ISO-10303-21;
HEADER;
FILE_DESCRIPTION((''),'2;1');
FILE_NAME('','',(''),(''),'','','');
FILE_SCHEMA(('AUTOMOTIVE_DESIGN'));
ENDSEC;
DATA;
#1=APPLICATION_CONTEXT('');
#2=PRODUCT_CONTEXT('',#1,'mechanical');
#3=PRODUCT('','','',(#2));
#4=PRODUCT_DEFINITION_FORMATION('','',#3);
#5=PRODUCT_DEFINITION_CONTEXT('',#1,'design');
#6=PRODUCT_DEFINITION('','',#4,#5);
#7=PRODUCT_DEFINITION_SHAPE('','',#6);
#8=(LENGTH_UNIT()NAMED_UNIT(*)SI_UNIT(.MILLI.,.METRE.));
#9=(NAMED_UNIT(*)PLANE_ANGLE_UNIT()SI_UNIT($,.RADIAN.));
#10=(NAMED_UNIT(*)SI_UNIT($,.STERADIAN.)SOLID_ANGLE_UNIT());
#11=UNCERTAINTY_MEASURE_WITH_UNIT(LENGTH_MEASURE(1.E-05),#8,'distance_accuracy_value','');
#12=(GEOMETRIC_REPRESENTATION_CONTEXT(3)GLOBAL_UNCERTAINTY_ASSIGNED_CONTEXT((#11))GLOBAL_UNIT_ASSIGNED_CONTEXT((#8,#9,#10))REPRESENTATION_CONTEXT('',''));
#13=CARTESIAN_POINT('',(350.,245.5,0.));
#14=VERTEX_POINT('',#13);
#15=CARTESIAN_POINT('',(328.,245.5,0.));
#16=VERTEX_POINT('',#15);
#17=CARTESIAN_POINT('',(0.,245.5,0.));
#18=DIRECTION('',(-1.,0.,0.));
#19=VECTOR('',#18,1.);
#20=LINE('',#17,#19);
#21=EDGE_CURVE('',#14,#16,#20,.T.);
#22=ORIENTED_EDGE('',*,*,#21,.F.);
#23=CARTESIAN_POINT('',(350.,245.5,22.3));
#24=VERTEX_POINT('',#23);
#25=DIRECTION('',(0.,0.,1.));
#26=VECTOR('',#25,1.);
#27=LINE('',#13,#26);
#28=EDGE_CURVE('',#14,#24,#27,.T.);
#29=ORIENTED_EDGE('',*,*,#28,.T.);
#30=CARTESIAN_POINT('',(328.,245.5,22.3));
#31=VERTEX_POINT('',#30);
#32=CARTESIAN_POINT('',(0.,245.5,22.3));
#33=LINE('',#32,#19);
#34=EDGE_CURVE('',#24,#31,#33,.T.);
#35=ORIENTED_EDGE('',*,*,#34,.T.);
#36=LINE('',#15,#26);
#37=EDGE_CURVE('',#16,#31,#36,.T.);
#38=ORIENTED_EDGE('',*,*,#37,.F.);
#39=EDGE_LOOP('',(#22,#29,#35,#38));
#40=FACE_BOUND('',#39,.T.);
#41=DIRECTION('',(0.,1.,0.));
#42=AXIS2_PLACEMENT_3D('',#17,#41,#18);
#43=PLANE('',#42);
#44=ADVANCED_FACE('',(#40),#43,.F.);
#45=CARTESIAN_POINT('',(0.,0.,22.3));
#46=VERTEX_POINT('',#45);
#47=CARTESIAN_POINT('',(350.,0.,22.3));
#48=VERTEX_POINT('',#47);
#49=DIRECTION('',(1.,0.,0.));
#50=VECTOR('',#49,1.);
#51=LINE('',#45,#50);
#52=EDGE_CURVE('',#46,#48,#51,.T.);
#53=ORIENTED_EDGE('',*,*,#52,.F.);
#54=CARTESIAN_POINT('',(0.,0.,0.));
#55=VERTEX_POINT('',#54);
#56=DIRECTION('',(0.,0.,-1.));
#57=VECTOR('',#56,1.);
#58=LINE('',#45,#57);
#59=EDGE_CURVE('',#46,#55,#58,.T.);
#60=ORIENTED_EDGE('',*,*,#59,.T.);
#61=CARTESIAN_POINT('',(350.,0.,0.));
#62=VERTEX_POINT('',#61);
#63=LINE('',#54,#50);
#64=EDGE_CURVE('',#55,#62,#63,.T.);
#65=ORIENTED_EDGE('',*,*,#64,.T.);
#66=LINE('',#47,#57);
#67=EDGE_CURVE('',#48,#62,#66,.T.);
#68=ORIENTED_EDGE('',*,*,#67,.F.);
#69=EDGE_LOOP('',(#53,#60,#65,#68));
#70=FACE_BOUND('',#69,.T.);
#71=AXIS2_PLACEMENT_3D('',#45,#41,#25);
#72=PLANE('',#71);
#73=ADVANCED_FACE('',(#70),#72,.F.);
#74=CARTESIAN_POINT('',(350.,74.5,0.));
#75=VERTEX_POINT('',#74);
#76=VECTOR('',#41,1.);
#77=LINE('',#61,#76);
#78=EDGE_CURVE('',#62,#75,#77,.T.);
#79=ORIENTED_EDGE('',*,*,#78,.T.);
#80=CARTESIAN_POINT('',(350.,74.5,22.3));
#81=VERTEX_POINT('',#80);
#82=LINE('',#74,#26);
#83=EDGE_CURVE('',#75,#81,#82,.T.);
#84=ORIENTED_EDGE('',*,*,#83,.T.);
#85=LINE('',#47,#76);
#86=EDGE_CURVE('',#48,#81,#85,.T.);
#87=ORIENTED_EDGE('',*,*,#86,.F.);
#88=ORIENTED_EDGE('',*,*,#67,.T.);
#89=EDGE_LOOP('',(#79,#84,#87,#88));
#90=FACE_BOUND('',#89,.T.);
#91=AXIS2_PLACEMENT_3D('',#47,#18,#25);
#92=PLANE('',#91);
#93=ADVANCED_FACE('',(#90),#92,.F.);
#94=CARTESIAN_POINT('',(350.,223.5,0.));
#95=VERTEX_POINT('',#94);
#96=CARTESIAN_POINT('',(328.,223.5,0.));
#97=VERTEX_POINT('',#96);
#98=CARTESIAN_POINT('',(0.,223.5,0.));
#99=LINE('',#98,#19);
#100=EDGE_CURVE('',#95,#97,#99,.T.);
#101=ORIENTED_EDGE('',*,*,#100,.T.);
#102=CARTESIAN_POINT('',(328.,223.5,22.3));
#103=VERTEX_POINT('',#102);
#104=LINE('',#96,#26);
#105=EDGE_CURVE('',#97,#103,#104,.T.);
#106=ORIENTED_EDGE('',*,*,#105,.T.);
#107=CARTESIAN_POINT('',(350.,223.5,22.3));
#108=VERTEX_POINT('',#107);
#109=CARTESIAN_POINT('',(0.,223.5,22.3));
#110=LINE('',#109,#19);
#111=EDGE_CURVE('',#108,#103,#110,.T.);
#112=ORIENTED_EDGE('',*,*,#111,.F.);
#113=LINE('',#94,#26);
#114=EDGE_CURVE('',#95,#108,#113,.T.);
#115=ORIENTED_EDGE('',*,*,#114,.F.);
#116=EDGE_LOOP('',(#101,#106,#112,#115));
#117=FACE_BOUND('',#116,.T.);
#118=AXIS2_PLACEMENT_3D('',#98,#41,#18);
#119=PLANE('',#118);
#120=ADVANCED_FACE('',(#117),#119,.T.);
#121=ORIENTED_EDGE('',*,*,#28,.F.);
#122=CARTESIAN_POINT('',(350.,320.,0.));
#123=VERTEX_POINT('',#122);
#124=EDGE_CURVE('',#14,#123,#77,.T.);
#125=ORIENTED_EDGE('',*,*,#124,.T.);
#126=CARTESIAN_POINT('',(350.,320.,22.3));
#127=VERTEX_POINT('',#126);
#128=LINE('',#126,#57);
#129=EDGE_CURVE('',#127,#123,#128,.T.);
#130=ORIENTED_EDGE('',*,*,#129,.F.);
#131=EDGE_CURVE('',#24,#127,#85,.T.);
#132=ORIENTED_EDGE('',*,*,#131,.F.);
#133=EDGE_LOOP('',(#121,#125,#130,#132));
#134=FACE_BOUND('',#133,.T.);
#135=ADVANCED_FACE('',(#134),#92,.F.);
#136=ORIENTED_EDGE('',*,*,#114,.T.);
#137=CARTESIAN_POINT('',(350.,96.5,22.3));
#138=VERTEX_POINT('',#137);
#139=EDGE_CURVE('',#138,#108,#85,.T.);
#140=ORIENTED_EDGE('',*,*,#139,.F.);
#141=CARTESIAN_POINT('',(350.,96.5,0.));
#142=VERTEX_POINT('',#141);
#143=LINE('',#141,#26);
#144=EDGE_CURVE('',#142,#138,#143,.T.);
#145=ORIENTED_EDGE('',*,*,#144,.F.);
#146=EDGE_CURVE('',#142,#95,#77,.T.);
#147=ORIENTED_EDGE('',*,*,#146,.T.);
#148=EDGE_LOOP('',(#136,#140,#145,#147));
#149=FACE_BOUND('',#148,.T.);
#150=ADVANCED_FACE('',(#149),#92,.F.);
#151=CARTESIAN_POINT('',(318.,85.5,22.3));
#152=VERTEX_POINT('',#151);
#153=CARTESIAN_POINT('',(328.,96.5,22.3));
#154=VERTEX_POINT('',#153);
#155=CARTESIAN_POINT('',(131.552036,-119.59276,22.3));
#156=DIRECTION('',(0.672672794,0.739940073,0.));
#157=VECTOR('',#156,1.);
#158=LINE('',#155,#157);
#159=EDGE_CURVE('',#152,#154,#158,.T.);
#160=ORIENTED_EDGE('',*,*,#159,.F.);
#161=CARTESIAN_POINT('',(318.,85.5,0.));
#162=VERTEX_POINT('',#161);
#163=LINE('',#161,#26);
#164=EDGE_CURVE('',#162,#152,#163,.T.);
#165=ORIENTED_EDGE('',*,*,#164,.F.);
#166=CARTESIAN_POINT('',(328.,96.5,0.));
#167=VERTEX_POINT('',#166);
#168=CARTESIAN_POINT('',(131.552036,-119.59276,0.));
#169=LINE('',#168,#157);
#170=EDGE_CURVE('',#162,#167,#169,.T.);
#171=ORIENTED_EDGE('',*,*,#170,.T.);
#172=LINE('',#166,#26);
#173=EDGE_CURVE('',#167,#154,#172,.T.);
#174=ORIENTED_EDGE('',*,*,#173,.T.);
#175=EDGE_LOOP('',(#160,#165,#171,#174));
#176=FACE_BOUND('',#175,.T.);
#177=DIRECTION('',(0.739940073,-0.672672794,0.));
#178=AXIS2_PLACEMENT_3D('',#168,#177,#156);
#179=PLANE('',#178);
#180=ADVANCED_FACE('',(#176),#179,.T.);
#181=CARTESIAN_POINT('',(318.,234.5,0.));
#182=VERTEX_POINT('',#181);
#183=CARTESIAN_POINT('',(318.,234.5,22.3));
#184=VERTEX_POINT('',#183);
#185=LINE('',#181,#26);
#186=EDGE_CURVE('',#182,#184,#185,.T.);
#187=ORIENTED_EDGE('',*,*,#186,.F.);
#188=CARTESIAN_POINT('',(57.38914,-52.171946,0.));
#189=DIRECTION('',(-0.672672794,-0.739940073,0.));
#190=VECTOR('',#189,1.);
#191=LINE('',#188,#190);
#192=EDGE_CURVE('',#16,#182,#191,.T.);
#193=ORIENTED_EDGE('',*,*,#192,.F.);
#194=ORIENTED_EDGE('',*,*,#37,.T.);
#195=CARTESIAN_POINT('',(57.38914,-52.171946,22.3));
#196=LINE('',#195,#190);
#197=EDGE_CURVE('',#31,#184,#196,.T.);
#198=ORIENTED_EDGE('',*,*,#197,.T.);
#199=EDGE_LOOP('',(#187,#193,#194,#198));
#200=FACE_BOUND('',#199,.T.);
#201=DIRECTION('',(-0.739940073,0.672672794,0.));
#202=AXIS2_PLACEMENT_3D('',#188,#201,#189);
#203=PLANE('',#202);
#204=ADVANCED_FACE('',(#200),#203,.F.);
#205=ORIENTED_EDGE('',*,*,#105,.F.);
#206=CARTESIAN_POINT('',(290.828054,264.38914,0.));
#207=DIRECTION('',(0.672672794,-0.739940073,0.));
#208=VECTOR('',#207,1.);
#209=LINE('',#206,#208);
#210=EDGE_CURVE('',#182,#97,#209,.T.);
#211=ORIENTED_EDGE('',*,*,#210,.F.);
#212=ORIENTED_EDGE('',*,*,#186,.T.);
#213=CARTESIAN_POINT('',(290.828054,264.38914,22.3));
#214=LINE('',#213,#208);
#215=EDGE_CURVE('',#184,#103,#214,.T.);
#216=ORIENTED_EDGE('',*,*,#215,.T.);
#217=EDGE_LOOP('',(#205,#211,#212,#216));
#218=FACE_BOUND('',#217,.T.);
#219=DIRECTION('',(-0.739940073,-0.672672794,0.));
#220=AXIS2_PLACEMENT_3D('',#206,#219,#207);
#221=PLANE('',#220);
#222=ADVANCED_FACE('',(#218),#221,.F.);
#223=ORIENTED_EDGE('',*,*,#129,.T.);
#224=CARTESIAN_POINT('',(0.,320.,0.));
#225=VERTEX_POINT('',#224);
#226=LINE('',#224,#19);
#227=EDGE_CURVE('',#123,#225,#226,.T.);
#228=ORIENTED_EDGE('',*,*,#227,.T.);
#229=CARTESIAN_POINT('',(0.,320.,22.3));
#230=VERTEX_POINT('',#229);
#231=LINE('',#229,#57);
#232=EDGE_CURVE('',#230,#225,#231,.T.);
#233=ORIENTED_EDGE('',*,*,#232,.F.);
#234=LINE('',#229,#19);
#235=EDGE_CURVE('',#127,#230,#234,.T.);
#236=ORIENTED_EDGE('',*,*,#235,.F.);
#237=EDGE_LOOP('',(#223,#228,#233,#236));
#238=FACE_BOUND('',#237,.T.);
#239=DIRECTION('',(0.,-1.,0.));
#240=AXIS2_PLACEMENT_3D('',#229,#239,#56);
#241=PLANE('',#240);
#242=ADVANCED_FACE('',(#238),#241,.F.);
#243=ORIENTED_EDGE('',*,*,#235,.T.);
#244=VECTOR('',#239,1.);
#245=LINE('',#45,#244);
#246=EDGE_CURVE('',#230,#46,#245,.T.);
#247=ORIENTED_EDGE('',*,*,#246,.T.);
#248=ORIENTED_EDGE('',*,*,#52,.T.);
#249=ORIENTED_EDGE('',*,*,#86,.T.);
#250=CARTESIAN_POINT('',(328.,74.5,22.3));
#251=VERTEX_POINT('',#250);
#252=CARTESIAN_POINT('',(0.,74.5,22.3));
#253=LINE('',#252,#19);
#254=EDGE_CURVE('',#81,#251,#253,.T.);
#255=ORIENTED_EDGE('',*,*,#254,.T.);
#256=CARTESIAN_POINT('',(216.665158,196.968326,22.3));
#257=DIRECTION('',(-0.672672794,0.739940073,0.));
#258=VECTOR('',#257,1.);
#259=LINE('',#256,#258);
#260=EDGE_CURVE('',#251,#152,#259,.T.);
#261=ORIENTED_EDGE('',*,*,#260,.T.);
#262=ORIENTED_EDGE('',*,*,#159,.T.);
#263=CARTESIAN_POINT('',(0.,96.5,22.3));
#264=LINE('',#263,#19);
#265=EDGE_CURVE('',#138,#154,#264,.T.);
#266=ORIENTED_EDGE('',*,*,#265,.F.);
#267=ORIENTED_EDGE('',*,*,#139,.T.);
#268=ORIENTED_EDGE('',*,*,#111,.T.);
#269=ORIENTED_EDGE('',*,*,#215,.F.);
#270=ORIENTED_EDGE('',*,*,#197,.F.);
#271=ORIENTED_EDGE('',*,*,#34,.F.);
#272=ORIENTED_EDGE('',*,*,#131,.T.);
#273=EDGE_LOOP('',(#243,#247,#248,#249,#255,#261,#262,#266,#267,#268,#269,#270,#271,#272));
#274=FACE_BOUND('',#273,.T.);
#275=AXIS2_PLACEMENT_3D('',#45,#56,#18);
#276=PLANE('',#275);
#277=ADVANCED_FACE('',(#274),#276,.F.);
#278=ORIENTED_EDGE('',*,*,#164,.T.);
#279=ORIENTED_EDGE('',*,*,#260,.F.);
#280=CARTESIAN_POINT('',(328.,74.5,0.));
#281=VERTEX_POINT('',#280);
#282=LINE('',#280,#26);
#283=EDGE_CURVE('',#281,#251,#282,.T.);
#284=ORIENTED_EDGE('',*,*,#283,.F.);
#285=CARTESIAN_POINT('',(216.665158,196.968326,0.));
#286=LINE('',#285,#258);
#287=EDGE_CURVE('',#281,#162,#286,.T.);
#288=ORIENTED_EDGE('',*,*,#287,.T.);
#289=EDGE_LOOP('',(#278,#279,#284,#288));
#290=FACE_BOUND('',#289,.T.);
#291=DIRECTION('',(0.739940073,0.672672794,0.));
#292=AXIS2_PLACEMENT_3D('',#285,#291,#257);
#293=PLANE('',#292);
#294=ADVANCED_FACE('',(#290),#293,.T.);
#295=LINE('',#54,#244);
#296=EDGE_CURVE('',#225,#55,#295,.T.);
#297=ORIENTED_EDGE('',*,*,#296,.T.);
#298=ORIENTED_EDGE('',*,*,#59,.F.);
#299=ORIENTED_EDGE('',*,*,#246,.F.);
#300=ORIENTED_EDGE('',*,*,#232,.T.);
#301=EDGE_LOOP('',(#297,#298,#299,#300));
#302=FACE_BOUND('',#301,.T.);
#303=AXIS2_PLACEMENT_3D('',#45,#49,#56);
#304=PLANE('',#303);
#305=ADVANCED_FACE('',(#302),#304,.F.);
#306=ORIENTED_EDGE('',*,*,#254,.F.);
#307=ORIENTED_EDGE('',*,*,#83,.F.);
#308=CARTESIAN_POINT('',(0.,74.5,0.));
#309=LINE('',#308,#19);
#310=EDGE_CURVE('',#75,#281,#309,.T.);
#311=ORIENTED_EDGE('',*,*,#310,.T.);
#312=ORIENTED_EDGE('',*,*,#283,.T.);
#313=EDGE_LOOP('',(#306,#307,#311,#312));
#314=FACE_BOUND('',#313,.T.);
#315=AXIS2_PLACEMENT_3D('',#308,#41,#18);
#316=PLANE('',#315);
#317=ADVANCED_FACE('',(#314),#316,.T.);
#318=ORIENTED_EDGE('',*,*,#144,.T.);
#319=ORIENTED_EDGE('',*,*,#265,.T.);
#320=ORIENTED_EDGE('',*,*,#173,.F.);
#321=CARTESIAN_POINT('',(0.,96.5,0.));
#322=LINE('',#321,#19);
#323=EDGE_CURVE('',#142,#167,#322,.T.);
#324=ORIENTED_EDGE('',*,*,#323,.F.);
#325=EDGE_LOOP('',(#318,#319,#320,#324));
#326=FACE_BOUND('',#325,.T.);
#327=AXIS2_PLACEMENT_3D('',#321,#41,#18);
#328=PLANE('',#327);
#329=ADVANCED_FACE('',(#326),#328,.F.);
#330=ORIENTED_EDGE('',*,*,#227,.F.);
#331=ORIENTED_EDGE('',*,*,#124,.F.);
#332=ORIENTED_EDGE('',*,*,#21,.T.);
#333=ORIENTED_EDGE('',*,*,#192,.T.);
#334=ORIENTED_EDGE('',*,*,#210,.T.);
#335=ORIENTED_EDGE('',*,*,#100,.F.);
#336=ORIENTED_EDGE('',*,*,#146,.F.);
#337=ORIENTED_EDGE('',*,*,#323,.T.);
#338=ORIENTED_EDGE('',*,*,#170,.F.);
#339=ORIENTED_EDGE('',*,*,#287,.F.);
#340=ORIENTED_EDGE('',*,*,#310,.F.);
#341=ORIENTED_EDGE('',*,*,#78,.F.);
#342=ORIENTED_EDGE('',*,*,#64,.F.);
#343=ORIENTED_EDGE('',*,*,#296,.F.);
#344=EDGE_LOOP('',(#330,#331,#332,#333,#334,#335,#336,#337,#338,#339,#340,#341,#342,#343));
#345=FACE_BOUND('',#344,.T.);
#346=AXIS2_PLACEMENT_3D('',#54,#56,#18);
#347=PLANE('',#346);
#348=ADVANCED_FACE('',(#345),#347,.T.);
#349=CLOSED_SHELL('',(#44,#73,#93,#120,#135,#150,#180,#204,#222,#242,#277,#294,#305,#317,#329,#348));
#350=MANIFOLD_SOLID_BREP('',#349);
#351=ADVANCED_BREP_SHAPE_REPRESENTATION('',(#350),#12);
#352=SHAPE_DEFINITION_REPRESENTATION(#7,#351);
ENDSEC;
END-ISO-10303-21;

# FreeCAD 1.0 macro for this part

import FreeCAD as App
import Part
import Sketcher

V = App.Vector
Q = App.Units.Quantity


def add_polygon(sketch, points):
    """Adds a closed chain of lines whose ends are joined by coincident constraints."""
    first, n = sketch.GeometryCount, len(points)
    for a, b in zip(points, points[1:] + points[:1]):
        sketch.addGeometry(Part.LineSegment(App.Vector(*a, 0), App.Vector(*b, 0)), False)
    for i in range(n):
        sketch.addConstraint(Sketcher.Constraint("Coincident", first + i, 2, first + (i + 1) % n, 1))

doc = App.newDocument("Part")
body = doc.addObject("PartDesign::Body", "Body")

sketch1 = body.newObject("Sketcher::SketchObject", "Sketch")
sketch1.AttachmentSupport = (doc.getObject("XY_Plane"), [""])
sketch1.MapMode = "FlatFace"
add_polygon(sketch1, [(0, 320), (0, 0), (350, 0), (350, 320)])
sketch1.addConstraint(Sketcher.Constraint("Vertical", 0))
sketch1.addConstraint(Sketcher.Constraint("Horizontal", 1))
sketch1.addConstraint(Sketcher.Constraint("Vertical", 2))
sketch1.addConstraint(Sketcher.Constraint("Horizontal", 3))
sketch1.addConstraint(Sketcher.Constraint("Coincident", 0, 2, -1, 1))
sketch1.addConstraint(Sketcher.Constraint("DistanceX", 1, 1, 1, 2, Q("350 mm")))
sketch1.addConstraint(Sketcher.Constraint("DistanceY", 0, 2, 0, 1, Q("320 mm")))
pad1 = body.newObject("PartDesign::Pad", "Pad")
pad1.Profile = sketch1
pad1.Length = 22.3

sketch2 = body.newObject("Sketcher::SketchObject", "Sketch001")
sketch2.AttachmentSupport = (doc.getObject("XY_Plane"), [""])
sketch2.MapMode = "FlatFace"
sketch2.AttachmentOffset = App.Placement(V(0, 0, 22.3), App.Rotation())
add_polygon(sketch2, [(318, 234.5), (328, 223.5), (350, 223.5), (350, 245.5), (328, 245.5)])
add_polygon(sketch2, [(318, 85.5), (328, 74.5), (350, 74.5), (350, 96.5), (328, 96.5)])
sketch2.addConstraint(Sketcher.Constraint("Horizontal", 1))
sketch2.addConstraint(Sketcher.Constraint("Vertical", 2))
sketch2.addConstraint(Sketcher.Constraint("Horizontal", 3))
sketch2.addConstraint(Sketcher.Constraint("Horizontal", 6))
sketch2.addConstraint(Sketcher.Constraint("Vertical", 7))
sketch2.addConstraint(Sketcher.Constraint("Horizontal", 8))
sketch2.addConstraint(Sketcher.Constraint("Parallel", 0, 5))
sketch2.addConstraint(Sketcher.Constraint("Parallel", 4, 9))
sketch2.addConstraint(Sketcher.Constraint("Vertical", 0, 2, 3, 2))
sketch2.addConstraint(Sketcher.Constraint("Vertical", 3, 2, 5, 2))
sketch2.addConstraint(Sketcher.Constraint("Vertical", 2, 2, 6, 2))
sketch2.addConstraint(Sketcher.Constraint("Vertical", 5, 2, 8, 2))
sketch2.addConstraint(Sketcher.Constraint("Vertical", 4, 2, 9, 2))
sketch2.addConstraint(Sketcher.Constraint("Equal", 8, 2))
sketch2.addConstraint(Sketcher.Constraint("Equal", 0, 4))
sketch2.addConstraint(Sketcher.Constraint("DistanceX", 1, 1, 1, 2, Q("22 mm")))
sketch2.addConstraint(Sketcher.Constraint("DistanceX", -1, 1, 0, 2, Q("328 mm")))
sketch2.addConstraint(Sketcher.Constraint("DistanceX", -1, 1, 4, 2, Q("318 mm")))
sketch2.addConstraint(Sketcher.Constraint("DistanceY", 5, 2, 0, 2, Q("149 mm")))
sketch2.addConstraint(Sketcher.Constraint("DistanceY", -1, 1, 0, 2, Q("223.5 mm")))
pocket1 = body.newObject("PartDesign::Pocket", "Pocket")
pocket1.Profile = sketch2
pocket1.Type = "ThroughAll"

doc.recompute()
